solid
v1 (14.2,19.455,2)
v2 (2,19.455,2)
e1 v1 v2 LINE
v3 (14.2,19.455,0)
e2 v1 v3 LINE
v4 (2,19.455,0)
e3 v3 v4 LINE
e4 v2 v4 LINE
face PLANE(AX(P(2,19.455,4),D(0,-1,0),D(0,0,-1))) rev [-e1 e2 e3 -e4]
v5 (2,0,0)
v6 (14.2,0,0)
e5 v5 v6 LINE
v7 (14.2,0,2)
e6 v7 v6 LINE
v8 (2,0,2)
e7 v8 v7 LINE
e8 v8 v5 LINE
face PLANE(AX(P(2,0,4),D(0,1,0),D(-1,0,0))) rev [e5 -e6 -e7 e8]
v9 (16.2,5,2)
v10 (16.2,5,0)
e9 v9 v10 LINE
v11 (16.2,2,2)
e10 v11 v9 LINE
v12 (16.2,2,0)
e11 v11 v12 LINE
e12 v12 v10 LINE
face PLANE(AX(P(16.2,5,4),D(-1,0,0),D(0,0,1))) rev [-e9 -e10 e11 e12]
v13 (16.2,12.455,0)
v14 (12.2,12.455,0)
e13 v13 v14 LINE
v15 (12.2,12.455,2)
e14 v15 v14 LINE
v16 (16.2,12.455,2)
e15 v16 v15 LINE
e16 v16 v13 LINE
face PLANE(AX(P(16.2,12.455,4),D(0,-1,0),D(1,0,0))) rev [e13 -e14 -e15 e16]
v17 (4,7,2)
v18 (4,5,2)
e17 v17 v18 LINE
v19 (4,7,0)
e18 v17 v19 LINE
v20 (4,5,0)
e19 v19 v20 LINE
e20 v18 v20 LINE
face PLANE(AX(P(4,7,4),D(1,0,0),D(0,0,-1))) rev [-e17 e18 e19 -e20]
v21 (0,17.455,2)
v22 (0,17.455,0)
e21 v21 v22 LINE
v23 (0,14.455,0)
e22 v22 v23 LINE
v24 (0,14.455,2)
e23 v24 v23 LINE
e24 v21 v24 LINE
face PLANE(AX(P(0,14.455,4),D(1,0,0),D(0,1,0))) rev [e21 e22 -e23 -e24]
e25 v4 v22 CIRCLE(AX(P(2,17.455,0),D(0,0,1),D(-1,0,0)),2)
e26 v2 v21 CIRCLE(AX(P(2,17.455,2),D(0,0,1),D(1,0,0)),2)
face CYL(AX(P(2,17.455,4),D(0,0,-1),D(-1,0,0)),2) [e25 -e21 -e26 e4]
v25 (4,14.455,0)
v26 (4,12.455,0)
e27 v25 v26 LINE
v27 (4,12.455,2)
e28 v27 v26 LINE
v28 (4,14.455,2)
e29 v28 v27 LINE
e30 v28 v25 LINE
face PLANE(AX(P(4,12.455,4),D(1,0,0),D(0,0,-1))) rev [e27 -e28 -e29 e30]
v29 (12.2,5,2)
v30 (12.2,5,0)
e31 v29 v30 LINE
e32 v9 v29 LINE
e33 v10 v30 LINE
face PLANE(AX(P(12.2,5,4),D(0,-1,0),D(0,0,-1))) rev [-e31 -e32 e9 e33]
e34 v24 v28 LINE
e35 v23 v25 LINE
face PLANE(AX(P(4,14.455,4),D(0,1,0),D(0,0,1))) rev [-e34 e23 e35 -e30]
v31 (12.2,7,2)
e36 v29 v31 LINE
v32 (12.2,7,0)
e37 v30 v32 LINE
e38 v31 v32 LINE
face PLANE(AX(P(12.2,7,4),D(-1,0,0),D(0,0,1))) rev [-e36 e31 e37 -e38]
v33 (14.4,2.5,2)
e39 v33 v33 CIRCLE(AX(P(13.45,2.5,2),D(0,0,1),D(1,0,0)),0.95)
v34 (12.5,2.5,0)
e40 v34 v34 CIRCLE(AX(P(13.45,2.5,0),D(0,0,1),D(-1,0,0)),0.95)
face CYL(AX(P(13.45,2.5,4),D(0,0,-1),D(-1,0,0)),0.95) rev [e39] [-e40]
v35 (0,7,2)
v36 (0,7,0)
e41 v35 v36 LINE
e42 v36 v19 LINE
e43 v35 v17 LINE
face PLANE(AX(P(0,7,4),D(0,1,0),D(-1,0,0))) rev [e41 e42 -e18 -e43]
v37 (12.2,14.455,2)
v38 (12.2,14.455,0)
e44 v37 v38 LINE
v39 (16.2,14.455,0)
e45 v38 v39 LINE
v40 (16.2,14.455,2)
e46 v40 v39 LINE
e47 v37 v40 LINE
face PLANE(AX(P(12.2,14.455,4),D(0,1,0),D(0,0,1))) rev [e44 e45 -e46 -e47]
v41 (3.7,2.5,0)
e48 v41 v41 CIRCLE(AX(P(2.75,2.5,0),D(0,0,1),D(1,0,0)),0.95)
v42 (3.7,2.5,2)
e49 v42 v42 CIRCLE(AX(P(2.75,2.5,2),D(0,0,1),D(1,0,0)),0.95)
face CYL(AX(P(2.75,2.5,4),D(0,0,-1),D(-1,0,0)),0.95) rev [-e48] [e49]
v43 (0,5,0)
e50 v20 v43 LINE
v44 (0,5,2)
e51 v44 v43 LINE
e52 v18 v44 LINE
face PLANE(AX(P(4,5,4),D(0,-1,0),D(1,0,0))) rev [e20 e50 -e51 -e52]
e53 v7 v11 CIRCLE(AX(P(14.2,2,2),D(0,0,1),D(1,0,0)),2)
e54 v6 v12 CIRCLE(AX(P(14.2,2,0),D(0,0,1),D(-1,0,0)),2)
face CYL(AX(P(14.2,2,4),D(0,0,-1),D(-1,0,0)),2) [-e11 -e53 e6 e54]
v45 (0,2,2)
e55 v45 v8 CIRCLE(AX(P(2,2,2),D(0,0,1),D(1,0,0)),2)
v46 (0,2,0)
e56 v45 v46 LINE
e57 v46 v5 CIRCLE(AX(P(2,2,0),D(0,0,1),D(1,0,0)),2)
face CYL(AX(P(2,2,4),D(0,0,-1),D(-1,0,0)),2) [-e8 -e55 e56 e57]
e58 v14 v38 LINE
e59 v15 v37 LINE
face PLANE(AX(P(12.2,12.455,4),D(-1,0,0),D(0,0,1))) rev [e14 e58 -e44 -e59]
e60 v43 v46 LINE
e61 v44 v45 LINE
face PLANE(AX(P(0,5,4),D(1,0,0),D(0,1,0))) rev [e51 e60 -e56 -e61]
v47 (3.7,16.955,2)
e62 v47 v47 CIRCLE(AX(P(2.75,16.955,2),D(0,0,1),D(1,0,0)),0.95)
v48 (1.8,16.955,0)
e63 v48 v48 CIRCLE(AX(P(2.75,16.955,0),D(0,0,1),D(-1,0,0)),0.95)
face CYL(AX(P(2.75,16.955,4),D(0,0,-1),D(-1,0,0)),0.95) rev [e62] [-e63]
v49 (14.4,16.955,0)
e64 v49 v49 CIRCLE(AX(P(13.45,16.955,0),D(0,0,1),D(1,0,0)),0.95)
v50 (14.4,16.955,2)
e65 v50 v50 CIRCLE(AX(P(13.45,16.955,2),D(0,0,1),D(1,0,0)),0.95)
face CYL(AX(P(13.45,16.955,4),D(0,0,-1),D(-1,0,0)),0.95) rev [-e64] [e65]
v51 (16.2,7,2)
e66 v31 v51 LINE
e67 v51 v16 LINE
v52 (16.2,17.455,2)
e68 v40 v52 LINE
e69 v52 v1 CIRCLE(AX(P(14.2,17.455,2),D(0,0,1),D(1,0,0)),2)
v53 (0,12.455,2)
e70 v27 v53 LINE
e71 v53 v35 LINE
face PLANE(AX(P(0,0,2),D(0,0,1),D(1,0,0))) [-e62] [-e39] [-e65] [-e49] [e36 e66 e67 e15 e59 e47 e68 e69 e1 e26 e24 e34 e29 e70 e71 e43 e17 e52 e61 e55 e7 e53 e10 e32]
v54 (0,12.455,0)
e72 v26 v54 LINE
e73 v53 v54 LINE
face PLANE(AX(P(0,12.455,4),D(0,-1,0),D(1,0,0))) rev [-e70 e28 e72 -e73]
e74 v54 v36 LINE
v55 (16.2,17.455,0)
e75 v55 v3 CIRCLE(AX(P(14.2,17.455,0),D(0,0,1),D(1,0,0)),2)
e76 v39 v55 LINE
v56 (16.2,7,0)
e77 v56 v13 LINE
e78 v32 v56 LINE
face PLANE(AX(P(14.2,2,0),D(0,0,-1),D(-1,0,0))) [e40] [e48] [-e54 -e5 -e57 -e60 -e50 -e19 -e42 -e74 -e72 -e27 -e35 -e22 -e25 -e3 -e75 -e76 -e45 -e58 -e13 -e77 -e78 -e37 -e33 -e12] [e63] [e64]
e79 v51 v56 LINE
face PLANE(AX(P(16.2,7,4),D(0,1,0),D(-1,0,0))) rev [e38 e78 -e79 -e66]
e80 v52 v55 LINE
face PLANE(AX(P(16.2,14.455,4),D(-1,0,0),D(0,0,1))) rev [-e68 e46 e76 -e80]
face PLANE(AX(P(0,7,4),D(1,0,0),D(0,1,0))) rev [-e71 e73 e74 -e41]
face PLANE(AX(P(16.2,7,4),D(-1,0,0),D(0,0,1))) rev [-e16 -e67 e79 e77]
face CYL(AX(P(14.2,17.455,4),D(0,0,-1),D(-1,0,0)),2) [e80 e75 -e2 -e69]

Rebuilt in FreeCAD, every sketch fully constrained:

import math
import FreeCAD as App
import Part
import Sketcher

doc = App.newDocument("Part")
body = doc.addObject("PartDesign::Body", "Body")

# Sketch on XY plane
sketch1 = body.newObject("Sketcher::SketchObject", "Sketch")
sketch1.AttachmentSupport = (doc.getObject("XY_Plane"), [""])
sketch1.MapMode = "FlatFace"
sketch1.addGeometry([
    Part.LineSegment(App.Vector(0, 12.5, 0), App.Vector(0, 7, 0)),  # 0
    Part.LineSegment(App.Vector(0, 7, 0), App.Vector(4, 7, 0)),  # 1
    Part.LineSegment(App.Vector(4, 7, 0), App.Vector(4, 5, 0)),  # 2
    Part.LineSegment(App.Vector(4, 5, 0), App.Vector(0, 5, 0)),  # 3
    Part.LineSegment(App.Vector(0, 5, 0), App.Vector(0, 2, 0)),  # 4
    Part.ArcOfCircle(Part.Circle(App.Vector(2, 2, 0), App.Vector(0, 0, 1), 2), math.radians(-180), math.radians(-90)),  # 5
    Part.LineSegment(App.Vector(2, 0, 0), App.Vector(14.2, 0, 0)),  # 6
    Part.ArcOfCircle(Part.Circle(App.Vector(14.2, 2, 0), App.Vector(0, 0, 1), 2), math.radians(-90), math.radians(0)),  # 7
    Part.LineSegment(App.Vector(16.2, 2, 0), App.Vector(16.2, 5, 0)),  # 8
    Part.LineSegment(App.Vector(16.2, 5, 0), App.Vector(12.2, 5, 0)),  # 9
    Part.LineSegment(App.Vector(12.2, 5, 0), App.Vector(12.2, 7, 0)),  # 10
    Part.LineSegment(App.Vector(12.2, 7, 0), App.Vector(16.2, 7, 0)),  # 11
    Part.LineSegment(App.Vector(16.2, 7, 0), App.Vector(16.2, 12.5, 0)),  # 12
    Part.LineSegment(App.Vector(16.2, 12.5, 0), App.Vector(12.2, 12.5, 0)),  # 13
    Part.LineSegment(App.Vector(12.2, 12.5, 0), App.Vector(12.2, 14.5, 0)),  # 14
    Part.LineSegment(App.Vector(12.2, 14.5, 0), App.Vector(16.2, 14.5, 0)),  # 15
    Part.LineSegment(App.Vector(16.2, 14.5, 0), App.Vector(16.2, 17.5, 0)),  # 16
    Part.ArcOfCircle(Part.Circle(App.Vector(14.2, 17.5, 0), App.Vector(0, 0, 1), 2), math.radians(0), math.radians(90)),  # 17
    Part.LineSegment(App.Vector(14.2, 19.5, 0), App.Vector(2, 19.5, 0)),  # 18
    Part.ArcOfCircle(Part.Circle(App.Vector(2, 17.5, 0), App.Vector(0, 0, 1), 2), math.radians(90), math.radians(180)),  # 19
    Part.LineSegment(App.Vector(0, 17.5, 0), App.Vector(0, 14.5, 0)),  # 20
    Part.LineSegment(App.Vector(0, 14.5, 0), App.Vector(4, 14.5, 0)),  # 21
    Part.LineSegment(App.Vector(4, 14.5, 0), App.Vector(4, 12.5, 0)),  # 22
    Part.LineSegment(App.Vector(4, 12.5, 0), App.Vector(0, 12.5, 0)),  # 23
    Part.Circle(App.Vector(13.4, 2.5, 0), App.Vector(0, 0, 1), 0.9),  # 24
    Part.Circle(App.Vector(2.8, 2.5, 0), App.Vector(0, 0, 1), 0.9),  # 25
    Part.Circle(App.Vector(13.4, 17, 0), App.Vector(0, 0, 1), 0.9),  # 26
    Part.Circle(App.Vector(2.8, 17, 0), App.Vector(0, 0, 1), 0.9),  # 27
], False)
sketch1.addConstraint([
    Sketcher.Constraint("Coincident", 0, 2, 1, 1),
    Sketcher.Constraint("Coincident", 1, 2, 2, 1),
    Sketcher.Constraint("Coincident", 2, 2, 3, 1),
    Sketcher.Constraint("Coincident", 3, 2, 4, 1),
    Sketcher.Constraint("Tangent", 4, 2, 5, 1),
    Sketcher.Constraint("Tangent", 5, 2, 6, 1),
    Sketcher.Constraint("Tangent", 6, 2, 7, 1),
    Sketcher.Constraint("Tangent", 7, 2, 8, 1),
    Sketcher.Constraint("Coincident", 8, 2, 9, 1),
    Sketcher.Constraint("Coincident", 9, 2, 10, 1),
    Sketcher.Constraint("Coincident", 10, 2, 11, 1),
    Sketcher.Constraint("Coincident", 11, 2, 12, 1),
    Sketcher.Constraint("Coincident", 12, 2, 13, 1),
    Sketcher.Constraint("Coincident", 13, 2, 14, 1),
    Sketcher.Constraint("Coincident", 14, 2, 15, 1),
    Sketcher.Constraint("Coincident", 15, 2, 16, 1),
    Sketcher.Constraint("Tangent", 16, 2, 17, 1),
    Sketcher.Constraint("Tangent", 17, 2, 18, 1),
    Sketcher.Constraint("Tangent", 18, 2, 19, 1),
    Sketcher.Constraint("Tangent", 19, 2, 20, 1),
    Sketcher.Constraint("Coincident", 20, 2, 21, 1),
    Sketcher.Constraint("Coincident", 21, 2, 22, 1),
    Sketcher.Constraint("Coincident", 22, 2, 23, 1),
    Sketcher.Constraint("Coincident", 23, 2, 0, 1),
    Sketcher.Constraint("Vertical", 0),
    Sketcher.Constraint("Horizontal", 1),
    Sketcher.Constraint("Vertical", 2),
    Sketcher.Constraint("Horizontal", 3),
    Sketcher.Constraint("Vertical", 4),
    Sketcher.Constraint("Horizontal", 6),
    Sketcher.Constraint("Vertical", 8),
    Sketcher.Constraint("Horizontal", 9),
    Sketcher.Constraint("Vertical", 10),
    Sketcher.Constraint("Horizontal", 11),
    Sketcher.Constraint("Vertical", 12),
    Sketcher.Constraint("Horizontal", 13),
    Sketcher.Constraint("Vertical", 14),
    Sketcher.Constraint("Horizontal", 15),
    Sketcher.Constraint("Vertical", 16),
    Sketcher.Constraint("Horizontal", 18),
    Sketcher.Constraint("Vertical", 20),
    Sketcher.Constraint("Horizontal", 21),
    Sketcher.Constraint("Vertical", 22),
    Sketcher.Constraint("Horizontal", 23),
    Sketcher.Constraint("Equal", 5, 7),
    Sketcher.Constraint("Equal", 7, 17),
    Sketcher.Constraint("Equal", 17, 19),
    Sketcher.Constraint("Equal", 24, 25),
    Sketcher.Constraint("Equal", 25, 26),
    Sketcher.Constraint("Equal", 26, 27),
    Sketcher.Constraint("PointOnObject", 0, 2, -2),
    Sketcher.Constraint("PointOnObject", 3, 2, -2),
    Sketcher.Constraint("PointOnObject", 5, 2, -1),
    Sketcher.Constraint("PointOnObject", 19, 2, -2),
    Sketcher.Constraint("Horizontal", 24, 3, 25, 3),
    Sketcher.Constraint("Horizontal", 26, 3, 27, 3),
    Sketcher.Constraint("Horizontal", 3, 2, 8, 2),
    Sketcher.Constraint("Horizontal", 1, 2, 10, 2),
    Sketcher.Constraint("Horizontal", 15, 2, 20, 2),
    Sketcher.Constraint("Horizontal", 13, 2, 22, 2),
    Sketcher.Constraint("Vertical", 7, 3, 17, 3),
    Sketcher.Constraint("Vertical", 24, 3, 26, 3),
    Sketcher.Constraint("Vertical", 25, 3, 27, 3),
    Sketcher.Constraint("Vertical", 8, 2, 11, 2),
    Sketcher.Constraint("Vertical", 10, 2, 13, 2),
    Sketcher.Constraint("Vertical", 2, 2, 21, 2),
    Sketcher.Constraint("Equal", 3, 9),
    Sketcher.Constraint("Equal", 10, 14),
    Sketcher.Constraint("Equal", 8, 16),
    Sketcher.Constraint("Radius", 5, 2.0),
    Sketcher.Constraint("Diameter", 24, 1.9),
    Sketcher.Constraint("DistanceX", 1, 1, 1, 2, 4.0),
    Sketcher.Constraint("DistanceY", 2, 2, 2, 1, 2.0),
    Sketcher.Constraint("DistanceY", 4, 2, 4, 1, 3.0),
    Sketcher.Constraint("DistanceX", 6, 1, 6, 2, 12.2),
    Sketcher.Constraint("DistanceY", -1, 1, 24, 3, 2.5),
    Sketcher.Constraint("DistanceX", 25, 3, 24, 3, 10.7),
    Sketcher.Constraint("DistanceY", 26, 3, 17, 3, 0.5),
    Sketcher.Constraint("DistanceY", 0, 2, 0, 1, 5.455),
    Sketcher.Constraint("DistanceX", -1, 1, 24, 3, 13.45),
])
pad1 = body.newObject("PartDesign::Pad", "Pad")
pad1.Profile = sketch1
pad1.Length = 4

# Sketch on XY plane
sketch2 = body.newObject("Sketcher::SketchObject", "Sketch001")
sketch2.AttachmentSupport = (doc.getObject("XY_Plane"), [""])
sketch2.MapMode = "FlatFace"
sketch2.AttachmentOffset = App.Placement(App.Vector(0, 0, 4), App.Rotation())
sketch2.addGeometry([
    Part.LineSegment(App.Vector(0, 19, 0), App.Vector(0, 0, 0)),
    Part.LineSegment(App.Vector(0, 0, 0), App.Vector(16, 0, 0)),
    Part.LineSegment(App.Vector(16, 0, 0), App.Vector(16, 19, 0)),
    Part.LineSegment(App.Vector(16, 19, 0), App.Vector(0, 19, 0)),
], False)
sketch2.addConstraint([
    Sketcher.Constraint("Coincident", 0, 2, 1, 1),
    Sketcher.Constraint("Coincident", 1, 2, 2, 1),
    Sketcher.Constraint("Coincident", 2, 2, 3, 1),
    Sketcher.Constraint("Coincident", 3, 2, 0, 1),
    Sketcher.Constraint("Vertical", 0),
    Sketcher.Constraint("Horizontal", 1),
    Sketcher.Constraint("Vertical", 2),
    Sketcher.Constraint("Horizontal", 3),
    Sketcher.Constraint("Coincident", 0, 2, -1, 1),
    Sketcher.Constraint("DistanceX", 1, 1, 1, 2, 16.2),
    Sketcher.Constraint("DistanceY", 0, 2, 0, 1, 19.455),
])
pocket1 = body.newObject("PartDesign::Pocket", "Pocket")
pocket1.Profile = sketch2
pocket1.Length = 2

doc.recompute()
